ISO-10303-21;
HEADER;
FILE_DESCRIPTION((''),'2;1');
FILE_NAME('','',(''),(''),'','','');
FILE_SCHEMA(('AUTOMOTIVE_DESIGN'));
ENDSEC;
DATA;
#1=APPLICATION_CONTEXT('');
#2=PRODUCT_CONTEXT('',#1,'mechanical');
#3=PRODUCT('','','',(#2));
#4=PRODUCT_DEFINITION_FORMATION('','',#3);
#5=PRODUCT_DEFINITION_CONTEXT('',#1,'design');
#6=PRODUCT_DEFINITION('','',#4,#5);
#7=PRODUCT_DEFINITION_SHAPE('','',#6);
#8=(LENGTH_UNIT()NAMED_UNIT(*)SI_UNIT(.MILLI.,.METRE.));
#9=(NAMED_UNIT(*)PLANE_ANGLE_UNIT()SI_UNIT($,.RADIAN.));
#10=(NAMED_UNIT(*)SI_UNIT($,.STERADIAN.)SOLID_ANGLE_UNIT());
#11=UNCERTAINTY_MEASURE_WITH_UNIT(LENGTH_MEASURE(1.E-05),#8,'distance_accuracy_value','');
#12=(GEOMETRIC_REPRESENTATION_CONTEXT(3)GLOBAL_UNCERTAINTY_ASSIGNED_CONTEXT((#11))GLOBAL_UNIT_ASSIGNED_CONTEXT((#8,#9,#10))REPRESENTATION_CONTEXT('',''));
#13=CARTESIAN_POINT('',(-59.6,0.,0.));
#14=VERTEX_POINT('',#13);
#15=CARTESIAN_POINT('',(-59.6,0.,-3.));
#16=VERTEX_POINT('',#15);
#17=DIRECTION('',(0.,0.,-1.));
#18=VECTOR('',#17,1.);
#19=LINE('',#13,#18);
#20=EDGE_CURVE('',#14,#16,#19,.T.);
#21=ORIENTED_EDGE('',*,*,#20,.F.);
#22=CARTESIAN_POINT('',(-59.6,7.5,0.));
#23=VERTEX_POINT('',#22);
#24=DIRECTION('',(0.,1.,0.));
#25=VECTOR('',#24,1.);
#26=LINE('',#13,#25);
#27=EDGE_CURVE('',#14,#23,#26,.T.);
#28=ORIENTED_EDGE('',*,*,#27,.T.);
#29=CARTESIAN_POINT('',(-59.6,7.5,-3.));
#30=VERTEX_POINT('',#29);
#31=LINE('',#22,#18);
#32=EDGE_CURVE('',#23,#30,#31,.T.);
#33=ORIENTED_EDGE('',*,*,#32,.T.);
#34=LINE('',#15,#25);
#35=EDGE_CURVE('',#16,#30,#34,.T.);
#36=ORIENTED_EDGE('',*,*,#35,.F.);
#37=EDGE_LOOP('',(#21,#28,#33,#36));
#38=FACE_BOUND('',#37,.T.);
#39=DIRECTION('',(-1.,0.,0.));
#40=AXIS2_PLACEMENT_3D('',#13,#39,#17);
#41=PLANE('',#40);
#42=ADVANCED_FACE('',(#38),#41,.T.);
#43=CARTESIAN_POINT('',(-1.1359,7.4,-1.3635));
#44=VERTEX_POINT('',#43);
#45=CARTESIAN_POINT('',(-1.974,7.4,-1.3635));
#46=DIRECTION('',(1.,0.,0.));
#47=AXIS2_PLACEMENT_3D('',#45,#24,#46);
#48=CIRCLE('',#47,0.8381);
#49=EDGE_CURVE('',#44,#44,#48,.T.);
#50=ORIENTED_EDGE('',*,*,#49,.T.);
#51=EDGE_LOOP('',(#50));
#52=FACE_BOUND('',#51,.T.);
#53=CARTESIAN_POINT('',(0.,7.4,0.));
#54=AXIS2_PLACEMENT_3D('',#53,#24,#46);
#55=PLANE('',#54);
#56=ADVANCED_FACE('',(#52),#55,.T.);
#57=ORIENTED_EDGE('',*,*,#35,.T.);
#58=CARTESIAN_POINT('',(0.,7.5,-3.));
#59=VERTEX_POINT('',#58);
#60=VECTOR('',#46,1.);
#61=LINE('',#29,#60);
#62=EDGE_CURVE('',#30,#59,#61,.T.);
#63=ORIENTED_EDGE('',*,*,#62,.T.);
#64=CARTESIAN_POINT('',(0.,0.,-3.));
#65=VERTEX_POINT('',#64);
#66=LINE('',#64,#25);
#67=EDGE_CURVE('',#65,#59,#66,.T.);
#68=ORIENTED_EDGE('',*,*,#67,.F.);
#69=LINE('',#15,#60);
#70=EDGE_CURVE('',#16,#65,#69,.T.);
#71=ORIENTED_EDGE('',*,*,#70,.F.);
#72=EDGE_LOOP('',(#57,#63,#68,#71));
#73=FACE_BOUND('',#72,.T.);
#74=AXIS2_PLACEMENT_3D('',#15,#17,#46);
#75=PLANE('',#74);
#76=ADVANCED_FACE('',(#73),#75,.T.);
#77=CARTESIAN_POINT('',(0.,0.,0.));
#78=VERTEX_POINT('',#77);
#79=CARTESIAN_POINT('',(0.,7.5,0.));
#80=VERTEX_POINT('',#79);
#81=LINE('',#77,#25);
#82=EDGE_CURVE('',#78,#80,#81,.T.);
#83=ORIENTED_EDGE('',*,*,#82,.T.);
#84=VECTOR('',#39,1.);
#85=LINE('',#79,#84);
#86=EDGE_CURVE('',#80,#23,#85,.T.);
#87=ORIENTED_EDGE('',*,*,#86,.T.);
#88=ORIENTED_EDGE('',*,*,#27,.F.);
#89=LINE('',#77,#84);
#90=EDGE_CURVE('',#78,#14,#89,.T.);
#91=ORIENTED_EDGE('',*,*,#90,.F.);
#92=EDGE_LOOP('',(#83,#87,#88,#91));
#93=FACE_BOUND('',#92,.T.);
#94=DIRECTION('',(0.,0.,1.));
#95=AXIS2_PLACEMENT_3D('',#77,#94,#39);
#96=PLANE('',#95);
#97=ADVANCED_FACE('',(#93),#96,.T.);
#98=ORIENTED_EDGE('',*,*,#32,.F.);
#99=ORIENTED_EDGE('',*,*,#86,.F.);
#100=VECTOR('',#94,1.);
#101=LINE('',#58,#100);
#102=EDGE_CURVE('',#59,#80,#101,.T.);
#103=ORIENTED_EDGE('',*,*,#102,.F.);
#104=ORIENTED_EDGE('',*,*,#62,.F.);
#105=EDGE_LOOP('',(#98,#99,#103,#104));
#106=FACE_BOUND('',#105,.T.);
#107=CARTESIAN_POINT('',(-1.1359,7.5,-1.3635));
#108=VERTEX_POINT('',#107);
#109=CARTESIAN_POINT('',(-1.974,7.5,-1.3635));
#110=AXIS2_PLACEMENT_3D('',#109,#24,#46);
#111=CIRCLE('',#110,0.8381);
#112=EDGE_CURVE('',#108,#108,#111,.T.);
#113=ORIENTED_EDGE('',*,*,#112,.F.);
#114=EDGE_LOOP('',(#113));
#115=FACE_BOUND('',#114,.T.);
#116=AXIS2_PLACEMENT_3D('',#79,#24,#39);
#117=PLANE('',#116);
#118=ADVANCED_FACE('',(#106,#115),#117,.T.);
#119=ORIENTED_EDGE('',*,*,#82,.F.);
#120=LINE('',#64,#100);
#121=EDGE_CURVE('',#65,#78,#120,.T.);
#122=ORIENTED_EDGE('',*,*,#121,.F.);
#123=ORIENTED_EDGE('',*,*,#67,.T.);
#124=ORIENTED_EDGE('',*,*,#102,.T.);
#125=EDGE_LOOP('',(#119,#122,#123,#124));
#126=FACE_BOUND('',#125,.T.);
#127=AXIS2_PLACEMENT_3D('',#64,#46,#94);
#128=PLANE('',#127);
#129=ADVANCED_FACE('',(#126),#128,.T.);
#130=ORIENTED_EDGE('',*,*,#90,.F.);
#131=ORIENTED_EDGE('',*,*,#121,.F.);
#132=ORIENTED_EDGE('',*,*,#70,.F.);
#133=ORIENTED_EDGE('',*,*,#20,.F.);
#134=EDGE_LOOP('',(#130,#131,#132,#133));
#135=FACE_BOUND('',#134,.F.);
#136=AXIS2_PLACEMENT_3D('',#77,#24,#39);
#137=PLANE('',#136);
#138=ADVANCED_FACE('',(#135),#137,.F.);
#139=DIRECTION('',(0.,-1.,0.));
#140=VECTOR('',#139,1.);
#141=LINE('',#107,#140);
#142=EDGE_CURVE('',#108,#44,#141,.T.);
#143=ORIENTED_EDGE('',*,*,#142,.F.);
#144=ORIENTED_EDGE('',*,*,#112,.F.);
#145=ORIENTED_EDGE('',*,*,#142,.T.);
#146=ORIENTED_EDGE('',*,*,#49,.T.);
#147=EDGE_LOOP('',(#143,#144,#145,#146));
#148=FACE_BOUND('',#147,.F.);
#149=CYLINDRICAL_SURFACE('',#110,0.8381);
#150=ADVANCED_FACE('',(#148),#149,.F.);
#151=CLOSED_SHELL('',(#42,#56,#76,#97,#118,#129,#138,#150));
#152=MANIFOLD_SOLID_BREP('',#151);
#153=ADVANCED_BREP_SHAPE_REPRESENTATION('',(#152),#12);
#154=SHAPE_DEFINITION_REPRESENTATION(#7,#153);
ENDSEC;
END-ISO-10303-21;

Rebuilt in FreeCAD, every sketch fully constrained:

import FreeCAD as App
import Part
import Sketcher
from FreeCAD import Vector

doc = App.newDocument("Part")
params = doc.addObject("Spreadsheet::Sheet", "Params")
for row, (alias, value) in enumerate([
    ("sketch1_height", "3 mm"),
    ("sketch1_width", "59.6 mm"),
    ("pad1_length", "7.5 mm"),
    ("pocket1_length", "0.1 mm"),
], start=1):
    params.set(f"A{row}", alias)
    params.set(f"B{row}", "=" + value)
    params.setAlias(f"B{row}", alias)

body = doc.addObject("PartDesign::Body", "Body")

sketch1 = doc.addObject("Sketcher::SketchObject", "Sketch")
body.addObject(sketch1)
sketch1.AttachmentSupport = (doc.XZ_Plane, [""])
sketch1.MapMode = "FlatFace"
sketch1.addGeometry([
    Part.LineSegment(Vector(-59.6, 0, 0), Vector(0, 0, 0)),
    Part.LineSegment(Vector(0, 0, 0), Vector(0, -3, 0)),
    Part.LineSegment(Vector(0, -3, 0), Vector(-59.6, -3, 0)),
    Part.LineSegment(Vector(-59.6, -3, 0), Vector(-59.6, 0, 0)),
], False)
sketch1.addConstraint([
    Sketcher.Constraint("Coincident", 0, 2, 1, 1),
    Sketcher.Constraint("Coincident", 1, 2, 2, 1),
    Sketcher.Constraint("Coincident", 2, 2, 3, 1),
    Sketcher.Constraint("Coincident", 3, 2, 0, 1),
    Sketcher.Constraint("Horizontal", 0),
    Sketcher.Constraint("Vertical", 1),
    Sketcher.Constraint("Horizontal", 2),
    Sketcher.Constraint("Vertical", 3),
    Sketcher.Constraint("Coincident", 0, 2, -1, 1),
    Sketcher.Constraint("DistanceY", 1, 2, 1, 1, 3.0),
    Sketcher.Constraint("DistanceX", 0, 1, 0, 2, 59.6),
])
sketch1.setExpression("Constraints[9]", "Params.sketch1_height")
sketch1.setExpression("Constraints[10]", "Params.sketch1_width")
pad1 = doc.addObject("PartDesign::Pad", "Pad")
body.addObject(pad1)
pad1.Profile = sketch1
pad1.setExpression("Length", "Params.pad1_length")
pad1.Reversed = True

sketch2 = doc.addObject("Sketcher::SketchObject", "Sketch001")
body.addObject(sketch2)
sketch2.AttachmentSupport = (doc.XZ_Plane, [""])
sketch2.MapMode = "FlatFace"
sketch2.AttachmentOffset = App.Placement(Vector(0, 0, -7.5), App.Rotation())
sketch2.addGeometry(Part.Circle(Vector(-1.974, -1.3635, 0), Vector(0, 0, 1), 0.8381), False)
sketch2.addConstraint([
    Sketcher.Constraint("Diameter", 0, 1.6762),
    Sketcher.Constraint("DistanceX", 0, 3, -1, 1, 1.974),
    Sketcher.Constraint("DistanceY", 0, 3, -1, 1, 1.3635),
])
pocket1 = doc.addObject("PartDesign::Pocket", "Pocket")
body.addObject(pocket1)
pocket1.Profile = sketch2
pocket1.setExpression("Length", "Params.pocket1_length")
pocket1.Reversed = True

doc.recompute()
